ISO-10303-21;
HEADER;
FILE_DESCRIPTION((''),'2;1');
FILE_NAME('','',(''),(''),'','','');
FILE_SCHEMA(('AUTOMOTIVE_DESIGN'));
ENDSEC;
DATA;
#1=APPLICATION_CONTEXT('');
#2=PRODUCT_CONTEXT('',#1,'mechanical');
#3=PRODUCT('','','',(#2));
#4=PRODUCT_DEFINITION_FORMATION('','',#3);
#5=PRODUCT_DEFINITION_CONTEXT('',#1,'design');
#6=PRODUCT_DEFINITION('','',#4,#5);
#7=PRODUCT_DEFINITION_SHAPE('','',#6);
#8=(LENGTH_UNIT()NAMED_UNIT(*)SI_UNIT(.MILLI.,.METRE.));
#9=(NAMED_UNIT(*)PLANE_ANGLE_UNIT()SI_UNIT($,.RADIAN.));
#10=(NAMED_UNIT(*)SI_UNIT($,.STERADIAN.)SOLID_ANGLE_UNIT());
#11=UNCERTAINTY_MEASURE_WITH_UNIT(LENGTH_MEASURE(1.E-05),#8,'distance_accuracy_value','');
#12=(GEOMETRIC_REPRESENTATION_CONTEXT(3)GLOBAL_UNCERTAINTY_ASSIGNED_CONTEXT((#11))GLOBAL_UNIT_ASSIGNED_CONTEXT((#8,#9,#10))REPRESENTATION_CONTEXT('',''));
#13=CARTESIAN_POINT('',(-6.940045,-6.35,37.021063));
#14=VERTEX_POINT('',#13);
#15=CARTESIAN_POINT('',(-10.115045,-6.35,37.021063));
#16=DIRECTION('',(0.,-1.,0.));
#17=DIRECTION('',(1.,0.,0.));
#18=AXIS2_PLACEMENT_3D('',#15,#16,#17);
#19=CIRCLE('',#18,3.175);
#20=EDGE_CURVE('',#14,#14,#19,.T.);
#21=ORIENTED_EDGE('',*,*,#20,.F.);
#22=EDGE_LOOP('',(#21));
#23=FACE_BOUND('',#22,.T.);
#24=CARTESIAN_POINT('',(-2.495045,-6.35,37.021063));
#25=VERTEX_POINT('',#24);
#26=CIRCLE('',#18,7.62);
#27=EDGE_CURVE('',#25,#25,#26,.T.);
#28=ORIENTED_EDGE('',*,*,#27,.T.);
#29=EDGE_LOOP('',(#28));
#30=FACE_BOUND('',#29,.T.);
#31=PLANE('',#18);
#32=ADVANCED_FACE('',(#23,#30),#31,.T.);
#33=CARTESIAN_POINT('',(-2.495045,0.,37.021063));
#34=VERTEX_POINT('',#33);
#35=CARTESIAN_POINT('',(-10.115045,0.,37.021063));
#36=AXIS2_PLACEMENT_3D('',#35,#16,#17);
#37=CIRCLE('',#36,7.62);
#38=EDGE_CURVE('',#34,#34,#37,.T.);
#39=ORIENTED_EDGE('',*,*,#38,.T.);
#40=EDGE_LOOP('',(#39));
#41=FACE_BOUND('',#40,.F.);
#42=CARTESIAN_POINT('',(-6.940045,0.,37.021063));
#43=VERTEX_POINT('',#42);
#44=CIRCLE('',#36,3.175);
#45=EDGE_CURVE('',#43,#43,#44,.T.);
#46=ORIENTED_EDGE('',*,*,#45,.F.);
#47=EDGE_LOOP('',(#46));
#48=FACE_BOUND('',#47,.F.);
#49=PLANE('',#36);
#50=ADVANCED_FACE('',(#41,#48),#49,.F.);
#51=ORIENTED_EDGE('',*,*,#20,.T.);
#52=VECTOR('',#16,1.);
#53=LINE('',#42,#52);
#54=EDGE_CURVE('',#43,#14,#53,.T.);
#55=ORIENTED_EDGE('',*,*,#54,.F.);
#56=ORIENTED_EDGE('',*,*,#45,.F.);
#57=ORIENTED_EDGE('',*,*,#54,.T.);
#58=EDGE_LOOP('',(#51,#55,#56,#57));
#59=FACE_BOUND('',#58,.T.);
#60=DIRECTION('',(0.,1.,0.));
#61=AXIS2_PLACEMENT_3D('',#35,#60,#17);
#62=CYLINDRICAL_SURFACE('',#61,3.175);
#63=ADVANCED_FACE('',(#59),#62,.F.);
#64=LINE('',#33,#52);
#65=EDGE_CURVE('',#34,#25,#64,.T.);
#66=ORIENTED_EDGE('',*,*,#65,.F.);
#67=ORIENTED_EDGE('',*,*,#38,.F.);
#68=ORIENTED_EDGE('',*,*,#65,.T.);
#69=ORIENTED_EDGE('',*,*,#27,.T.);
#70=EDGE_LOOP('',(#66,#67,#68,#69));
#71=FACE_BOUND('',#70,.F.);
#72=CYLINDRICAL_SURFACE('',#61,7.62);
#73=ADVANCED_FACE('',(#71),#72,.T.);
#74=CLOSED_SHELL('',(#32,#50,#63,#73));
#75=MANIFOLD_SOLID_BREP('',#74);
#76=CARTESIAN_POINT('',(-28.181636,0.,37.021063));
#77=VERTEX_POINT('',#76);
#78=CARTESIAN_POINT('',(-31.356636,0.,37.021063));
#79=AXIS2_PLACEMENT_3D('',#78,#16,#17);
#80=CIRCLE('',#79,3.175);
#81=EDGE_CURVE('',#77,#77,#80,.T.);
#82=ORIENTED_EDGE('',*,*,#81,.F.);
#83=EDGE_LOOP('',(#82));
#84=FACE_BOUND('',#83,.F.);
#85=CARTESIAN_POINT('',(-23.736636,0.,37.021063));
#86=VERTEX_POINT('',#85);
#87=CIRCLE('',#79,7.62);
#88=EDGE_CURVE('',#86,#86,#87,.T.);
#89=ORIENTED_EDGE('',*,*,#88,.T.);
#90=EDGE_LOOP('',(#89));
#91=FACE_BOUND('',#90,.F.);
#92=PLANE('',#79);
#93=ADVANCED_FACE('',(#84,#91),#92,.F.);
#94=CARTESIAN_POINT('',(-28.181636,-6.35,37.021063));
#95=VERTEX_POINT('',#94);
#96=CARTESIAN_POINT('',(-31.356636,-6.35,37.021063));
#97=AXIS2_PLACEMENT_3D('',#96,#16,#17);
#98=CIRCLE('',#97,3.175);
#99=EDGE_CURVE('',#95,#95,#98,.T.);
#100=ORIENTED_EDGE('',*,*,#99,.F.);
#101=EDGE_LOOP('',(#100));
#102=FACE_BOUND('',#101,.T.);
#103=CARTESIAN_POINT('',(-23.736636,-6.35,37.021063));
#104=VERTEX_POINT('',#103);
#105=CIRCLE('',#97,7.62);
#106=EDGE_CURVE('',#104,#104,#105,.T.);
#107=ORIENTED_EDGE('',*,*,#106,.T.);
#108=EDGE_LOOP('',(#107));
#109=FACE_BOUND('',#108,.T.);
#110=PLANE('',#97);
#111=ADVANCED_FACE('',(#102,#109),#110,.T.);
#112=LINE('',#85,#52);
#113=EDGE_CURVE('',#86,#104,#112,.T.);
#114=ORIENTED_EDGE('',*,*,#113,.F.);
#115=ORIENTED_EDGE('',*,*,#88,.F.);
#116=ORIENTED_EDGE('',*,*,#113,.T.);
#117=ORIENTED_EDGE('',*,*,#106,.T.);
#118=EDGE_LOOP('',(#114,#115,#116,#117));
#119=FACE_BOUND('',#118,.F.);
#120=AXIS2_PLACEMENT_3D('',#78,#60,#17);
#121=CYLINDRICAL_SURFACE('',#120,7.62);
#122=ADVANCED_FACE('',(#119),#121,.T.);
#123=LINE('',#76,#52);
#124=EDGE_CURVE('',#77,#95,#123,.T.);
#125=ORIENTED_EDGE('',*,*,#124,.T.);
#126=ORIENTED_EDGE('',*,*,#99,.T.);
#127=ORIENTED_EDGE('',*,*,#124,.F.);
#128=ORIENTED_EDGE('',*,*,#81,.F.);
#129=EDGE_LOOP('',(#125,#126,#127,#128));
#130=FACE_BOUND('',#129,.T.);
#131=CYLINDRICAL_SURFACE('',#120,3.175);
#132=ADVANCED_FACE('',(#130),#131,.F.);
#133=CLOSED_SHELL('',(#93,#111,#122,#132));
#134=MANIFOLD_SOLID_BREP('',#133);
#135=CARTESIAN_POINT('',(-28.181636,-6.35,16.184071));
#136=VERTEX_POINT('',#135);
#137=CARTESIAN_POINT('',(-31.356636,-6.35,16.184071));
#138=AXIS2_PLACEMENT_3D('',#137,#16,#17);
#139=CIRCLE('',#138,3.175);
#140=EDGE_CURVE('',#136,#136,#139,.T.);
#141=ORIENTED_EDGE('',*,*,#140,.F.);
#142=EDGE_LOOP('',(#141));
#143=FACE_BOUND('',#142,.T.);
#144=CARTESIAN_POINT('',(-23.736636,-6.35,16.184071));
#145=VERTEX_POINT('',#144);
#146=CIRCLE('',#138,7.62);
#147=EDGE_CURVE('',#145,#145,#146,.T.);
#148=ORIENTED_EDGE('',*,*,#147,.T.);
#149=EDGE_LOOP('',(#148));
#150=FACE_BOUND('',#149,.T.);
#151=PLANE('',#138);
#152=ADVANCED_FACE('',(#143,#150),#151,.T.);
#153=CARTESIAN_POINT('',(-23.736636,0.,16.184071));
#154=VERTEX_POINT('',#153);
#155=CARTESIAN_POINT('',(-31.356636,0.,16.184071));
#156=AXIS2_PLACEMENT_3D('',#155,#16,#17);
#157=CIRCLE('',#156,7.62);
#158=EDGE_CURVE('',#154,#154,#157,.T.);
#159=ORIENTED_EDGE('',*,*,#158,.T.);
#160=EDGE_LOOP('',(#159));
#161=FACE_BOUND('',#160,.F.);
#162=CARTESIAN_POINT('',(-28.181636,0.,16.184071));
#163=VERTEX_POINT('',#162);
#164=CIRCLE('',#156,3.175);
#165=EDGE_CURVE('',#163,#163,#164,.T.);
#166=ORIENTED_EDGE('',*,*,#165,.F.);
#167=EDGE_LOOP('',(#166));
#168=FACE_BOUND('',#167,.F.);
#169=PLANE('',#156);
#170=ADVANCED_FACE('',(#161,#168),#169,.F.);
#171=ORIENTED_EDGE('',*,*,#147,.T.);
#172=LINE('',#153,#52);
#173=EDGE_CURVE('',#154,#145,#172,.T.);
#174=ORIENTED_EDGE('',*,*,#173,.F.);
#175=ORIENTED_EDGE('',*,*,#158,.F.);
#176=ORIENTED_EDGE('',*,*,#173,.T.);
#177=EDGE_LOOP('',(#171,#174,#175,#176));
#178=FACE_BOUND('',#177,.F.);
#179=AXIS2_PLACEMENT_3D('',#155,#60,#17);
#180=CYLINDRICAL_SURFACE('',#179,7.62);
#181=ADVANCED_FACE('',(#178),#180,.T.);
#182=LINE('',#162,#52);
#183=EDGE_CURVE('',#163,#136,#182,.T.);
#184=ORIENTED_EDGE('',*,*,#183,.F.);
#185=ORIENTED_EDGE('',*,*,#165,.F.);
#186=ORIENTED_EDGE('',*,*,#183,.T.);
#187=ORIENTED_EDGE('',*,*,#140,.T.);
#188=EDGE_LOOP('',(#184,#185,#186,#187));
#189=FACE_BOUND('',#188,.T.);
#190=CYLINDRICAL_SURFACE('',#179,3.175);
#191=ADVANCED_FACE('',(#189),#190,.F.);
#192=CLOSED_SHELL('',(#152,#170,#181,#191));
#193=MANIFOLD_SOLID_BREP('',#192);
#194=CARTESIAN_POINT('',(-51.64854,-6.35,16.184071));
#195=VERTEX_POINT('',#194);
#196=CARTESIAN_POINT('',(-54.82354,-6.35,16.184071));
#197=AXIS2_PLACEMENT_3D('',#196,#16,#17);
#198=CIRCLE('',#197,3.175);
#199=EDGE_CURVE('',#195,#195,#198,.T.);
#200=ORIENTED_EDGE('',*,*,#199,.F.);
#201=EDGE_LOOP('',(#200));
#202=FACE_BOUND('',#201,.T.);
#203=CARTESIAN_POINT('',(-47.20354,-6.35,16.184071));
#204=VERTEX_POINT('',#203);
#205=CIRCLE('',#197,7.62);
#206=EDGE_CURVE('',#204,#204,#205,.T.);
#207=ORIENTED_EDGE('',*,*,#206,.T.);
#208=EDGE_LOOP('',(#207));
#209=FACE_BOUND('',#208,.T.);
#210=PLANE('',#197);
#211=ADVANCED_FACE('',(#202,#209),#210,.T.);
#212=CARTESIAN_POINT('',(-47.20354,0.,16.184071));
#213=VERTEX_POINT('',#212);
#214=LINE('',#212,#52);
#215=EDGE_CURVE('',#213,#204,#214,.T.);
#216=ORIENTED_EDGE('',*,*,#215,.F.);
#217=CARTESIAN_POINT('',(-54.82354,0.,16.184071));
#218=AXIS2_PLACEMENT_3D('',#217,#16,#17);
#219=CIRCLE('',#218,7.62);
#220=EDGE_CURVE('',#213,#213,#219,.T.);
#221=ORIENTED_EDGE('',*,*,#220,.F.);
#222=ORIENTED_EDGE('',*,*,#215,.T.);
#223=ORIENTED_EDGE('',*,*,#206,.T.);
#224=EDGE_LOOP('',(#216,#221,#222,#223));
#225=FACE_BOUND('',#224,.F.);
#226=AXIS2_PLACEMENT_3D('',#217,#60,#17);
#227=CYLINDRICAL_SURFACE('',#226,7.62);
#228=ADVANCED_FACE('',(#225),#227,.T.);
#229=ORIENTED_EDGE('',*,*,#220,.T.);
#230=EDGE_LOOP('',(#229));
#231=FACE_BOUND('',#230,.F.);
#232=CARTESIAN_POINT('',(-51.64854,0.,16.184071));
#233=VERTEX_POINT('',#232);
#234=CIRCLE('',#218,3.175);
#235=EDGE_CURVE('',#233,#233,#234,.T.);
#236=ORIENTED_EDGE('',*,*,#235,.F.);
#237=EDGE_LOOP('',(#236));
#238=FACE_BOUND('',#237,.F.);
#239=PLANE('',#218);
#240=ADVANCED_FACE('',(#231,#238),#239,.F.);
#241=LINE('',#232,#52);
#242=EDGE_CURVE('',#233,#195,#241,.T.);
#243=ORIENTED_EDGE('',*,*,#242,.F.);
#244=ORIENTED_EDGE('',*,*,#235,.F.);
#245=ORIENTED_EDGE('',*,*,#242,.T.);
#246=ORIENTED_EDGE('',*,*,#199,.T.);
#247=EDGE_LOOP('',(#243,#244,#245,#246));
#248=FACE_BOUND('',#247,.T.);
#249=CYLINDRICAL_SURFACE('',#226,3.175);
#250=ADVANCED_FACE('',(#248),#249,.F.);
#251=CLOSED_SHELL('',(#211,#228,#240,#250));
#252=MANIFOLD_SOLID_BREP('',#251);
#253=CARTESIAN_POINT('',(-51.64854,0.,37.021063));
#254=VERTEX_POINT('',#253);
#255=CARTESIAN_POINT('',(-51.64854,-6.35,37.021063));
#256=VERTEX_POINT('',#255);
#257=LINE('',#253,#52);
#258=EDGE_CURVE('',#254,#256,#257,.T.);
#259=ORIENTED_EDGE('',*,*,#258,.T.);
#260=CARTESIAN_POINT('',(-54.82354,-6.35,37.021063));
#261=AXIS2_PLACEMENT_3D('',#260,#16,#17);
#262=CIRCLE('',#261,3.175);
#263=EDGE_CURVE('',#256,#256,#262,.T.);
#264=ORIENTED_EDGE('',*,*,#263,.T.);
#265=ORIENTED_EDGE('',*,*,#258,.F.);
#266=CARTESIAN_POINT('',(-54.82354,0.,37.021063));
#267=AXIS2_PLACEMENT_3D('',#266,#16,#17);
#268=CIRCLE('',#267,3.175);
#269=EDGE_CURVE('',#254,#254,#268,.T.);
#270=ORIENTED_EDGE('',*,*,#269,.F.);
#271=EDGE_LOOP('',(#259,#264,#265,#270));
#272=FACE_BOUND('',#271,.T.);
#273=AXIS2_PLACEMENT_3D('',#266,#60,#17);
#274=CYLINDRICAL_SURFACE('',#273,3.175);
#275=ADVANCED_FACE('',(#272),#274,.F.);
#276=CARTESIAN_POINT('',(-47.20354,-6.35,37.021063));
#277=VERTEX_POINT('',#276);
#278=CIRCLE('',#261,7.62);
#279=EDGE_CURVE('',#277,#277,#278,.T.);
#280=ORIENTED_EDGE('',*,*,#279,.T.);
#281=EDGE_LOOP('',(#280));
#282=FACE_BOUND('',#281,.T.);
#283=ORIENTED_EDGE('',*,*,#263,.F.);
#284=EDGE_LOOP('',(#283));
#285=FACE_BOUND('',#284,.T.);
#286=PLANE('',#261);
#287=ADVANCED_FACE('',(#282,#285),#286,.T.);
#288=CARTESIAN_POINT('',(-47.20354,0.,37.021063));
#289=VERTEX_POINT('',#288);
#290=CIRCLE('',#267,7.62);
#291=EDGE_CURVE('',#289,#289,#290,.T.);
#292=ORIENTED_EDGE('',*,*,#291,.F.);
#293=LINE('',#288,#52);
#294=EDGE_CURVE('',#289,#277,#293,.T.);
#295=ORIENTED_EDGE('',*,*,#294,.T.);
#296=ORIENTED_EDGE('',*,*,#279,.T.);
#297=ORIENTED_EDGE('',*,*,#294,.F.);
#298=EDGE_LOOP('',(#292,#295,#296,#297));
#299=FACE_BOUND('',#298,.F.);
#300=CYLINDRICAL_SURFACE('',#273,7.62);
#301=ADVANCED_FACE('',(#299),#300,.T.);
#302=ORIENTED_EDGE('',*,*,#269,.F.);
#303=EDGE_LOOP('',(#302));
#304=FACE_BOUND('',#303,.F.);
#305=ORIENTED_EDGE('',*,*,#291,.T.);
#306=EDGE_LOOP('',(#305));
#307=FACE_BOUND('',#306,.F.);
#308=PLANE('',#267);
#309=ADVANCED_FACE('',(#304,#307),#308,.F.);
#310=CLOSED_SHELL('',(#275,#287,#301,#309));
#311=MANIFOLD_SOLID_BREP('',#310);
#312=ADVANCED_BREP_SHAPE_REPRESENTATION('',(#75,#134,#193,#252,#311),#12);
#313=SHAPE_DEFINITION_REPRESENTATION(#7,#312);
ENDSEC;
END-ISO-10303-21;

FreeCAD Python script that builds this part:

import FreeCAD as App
import Part
import Sketcher
from FreeCAD import Vector
Q = App.Units.Quantity

doc = App.newDocument("Part")
params = doc.addObject("Spreadsheet::Sheet", "Params")
for row, (alias, value) in enumerate([
    ("sketch1_diameter", "0.6 in"),
    ("sketch1_diameter2", "0.25 in"),
    ("pad1_length", "0.25 in"),
], start=1):
    params.set(f"A{row}", alias)
    params.set(f"B{row}", "=" + value)
    params.setAlias(f"B{row}", alias)

body = doc.addObject("PartDesign::Body", "Body")
body.AllowCompound = True

# Sketch on XZ plane
sketch1 = doc.addObject("Sketcher::SketchObject", "Sketch")
body.addObject(sketch1)
sketch1.AttachmentSupport = (doc.XZ_Plane, [""])
sketch1.MapMode = "FlatFace"
sketch1.addGeometry(Part.Circle(Vector(-54.8, 37, 0), Vector(0, 0, 1), 7.6), False)
sketch1.addGeometry(Part.Circle(Vector(-54.8, 37, 0), Vector(0, 0, 1), 3.2), False)
sketch1.addGeometry(Part.Circle(Vector(-31.4, 37, 0), Vector(0, 0, 1), 7.6), False)
sketch1.addGeometry(Part.Circle(Vector(-31.4, 37, 0), Vector(0, 0, 1), 3.2), False)
sketch1.addGeometry(Part.Circle(Vector(-10.1, 37, 0), Vector(0, 0, 1), 7.6), False)
sketch1.addGeometry(Part.Circle(Vector(-10.1, 37, 0), Vector(0, 0, 1), 3.2), False)
sketch1.addGeometry(Part.Circle(Vector(-54.8, 16.2, 0), Vector(0, 0, 1), 7.6), False)
sketch1.addGeometry(Part.Circle(Vector(-54.8, 16.2, 0), Vector(0, 0, 1), 3.2), False)
sketch1.addGeometry(Part.Circle(Vector(-31.4, 16.2, 0), Vector(0, 0, 1), 7.6), False)
sketch1.addGeometry(Part.Circle(Vector(-31.4, 16.2, 0), Vector(0, 0, 1), 3.2), False)
sketch1.addConstraint(Sketcher.Constraint("Coincident", 1, 3, 0, 3))
sketch1.addConstraint(Sketcher.Constraint("Coincident", 3, 3, 2, 3))
sketch1.addConstraint(Sketcher.Constraint("Coincident", 5, 3, 4, 3))
sketch1.addConstraint(Sketcher.Constraint("Coincident", 7, 3, 6, 3))
sketch1.addConstraint(Sketcher.Constraint("Coincident", 9, 3, 8, 3))
sketch1.addConstraint(Sketcher.Constraint("Equal", 0, 2))
sketch1.addConstraint(Sketcher.Constraint("Equal", 1, 3))
sketch1.addConstraint(Sketcher.Constraint("Equal", 2, 4))
sketch1.addConstraint(Sketcher.Constraint("Equal", 3, 5))
sketch1.addConstraint(Sketcher.Constraint("Equal", 4, 6))
sketch1.addConstraint(Sketcher.Constraint("Equal", 5, 7))
sketch1.addConstraint(Sketcher.Constraint("Equal", 6, 8))
sketch1.addConstraint(Sketcher.Constraint("Equal", 7, 9))
sketch1.addConstraint(Sketcher.Constraint("Horizontal", 1, 3, 2, 3))
sketch1.addConstraint(Sketcher.Constraint("Horizontal", 3, 3, 4, 3))
sketch1.addConstraint(Sketcher.Constraint("Horizontal", 7, 3, 8, 3))
sketch1.addConstraint(Sketcher.Constraint("Vertical", 1, 3, 6, 3))
sketch1.addConstraint(Sketcher.Constraint("Vertical", 3, 3, 8, 3))
sketch1.addConstraint(Sketcher.Constraint("Diameter", 0, Q("0.6 in")))
sketch1.addConstraint(Sketcher.Constraint("Diameter", 1, Q("0.25 in")))
sketch1.addConstraint(Sketcher.Constraint("DistanceX", 0, 3, -1, 1, Q("54.82354 mm")))
sketch1.addConstraint(Sketcher.Constraint("DistanceY", -1, 1, 6, 3, Q("16.184071 mm")))
sketch1.addConstraint(Sketcher.Constraint("DistanceX", 2, 3, 4, 3, Q("21.241591 mm")))
sketch1.addConstraint(Sketcher.Constraint("DistanceY", 6, 3, 0, 3, Q("20.836992 mm")))
sketch1.addConstraint(Sketcher.Constraint("DistanceX", 2, 3, -1, 1, Q("31.356636 mm")))
sketch1.setExpression("Constraints[18]", "Params.sketch1_diameter")
sketch1.setExpression("Constraints[19]", "Params.sketch1_diameter2")
pad1 = doc.addObject("PartDesign::Pad", "Pad")
body.addObject(pad1)
pad1.Profile = sketch1
pad1.setExpression("Length", "Params.pad1_length")

doc.recompute()
